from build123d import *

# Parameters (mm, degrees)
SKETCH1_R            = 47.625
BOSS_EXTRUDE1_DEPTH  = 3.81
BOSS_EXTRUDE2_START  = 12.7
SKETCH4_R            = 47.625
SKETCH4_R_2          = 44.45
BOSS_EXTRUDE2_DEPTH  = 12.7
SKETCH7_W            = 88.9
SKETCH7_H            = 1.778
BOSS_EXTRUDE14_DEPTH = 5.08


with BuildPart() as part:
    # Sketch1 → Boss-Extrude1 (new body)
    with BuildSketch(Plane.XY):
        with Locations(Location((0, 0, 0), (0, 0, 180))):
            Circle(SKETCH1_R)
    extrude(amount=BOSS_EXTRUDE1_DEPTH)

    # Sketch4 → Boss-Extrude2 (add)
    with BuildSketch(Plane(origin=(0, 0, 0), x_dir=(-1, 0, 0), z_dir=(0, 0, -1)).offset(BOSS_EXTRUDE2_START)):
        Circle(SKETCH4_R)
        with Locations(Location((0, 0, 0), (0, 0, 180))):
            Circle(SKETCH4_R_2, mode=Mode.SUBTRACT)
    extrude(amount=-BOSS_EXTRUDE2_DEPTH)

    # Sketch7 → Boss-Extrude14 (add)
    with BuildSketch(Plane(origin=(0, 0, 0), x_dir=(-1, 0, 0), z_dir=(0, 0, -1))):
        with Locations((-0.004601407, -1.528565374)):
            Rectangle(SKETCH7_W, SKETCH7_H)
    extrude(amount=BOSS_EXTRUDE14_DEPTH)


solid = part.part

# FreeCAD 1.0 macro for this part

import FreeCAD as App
import Part
import Sketcher
from FreeCAD import Vector
Q = App.Units.Quantity

doc = App.newDocument("Part")
body = doc.addObject("PartDesign::Body", "Body")

sketch1 = body.newObject("Sketcher::SketchObject", "Sketch")
sketch1.AttachmentSupport = (doc.getObject("XY_Plane"), [""])
sketch1.MapMode = "FlatFace"
sketch1.addGeometry(Part.Circle(Vector(0, 0, 0), Vector(0, 0, 1), 48), False)
sketch1.addConstraint([
    Sketcher.Constraint("Coincident", 0, 3, -1, 1),
    Sketcher.Constraint("Diameter", 0, Q("3.75 in")),
])
pad1 = body.newObject("PartDesign::Pad", "Pad")
pad1.Profile = sketch1
pad1.Length = Q("0.15 in")

sketch2 = body.newObject("Sketcher::SketchObject", "Sketch001")
sketch2.AttachmentSupport = (doc.getObject("XY_Plane"), [""])
sketch2.MapMode = "FlatFace"
sketch2.AttachmentOffset = App.Placement(Vector(0, 0, -0.5 * 25.4), App.Rotation())
sketch2.addGeometry([
    Part.Circle(Vector(0, 0, 0), Vector(0, 0, 1), 48),
    Part.Circle(Vector(0, 0, 0), Vector(0, 0, 1), 44),
], False)
sketch2.addConstraint([
    Sketcher.Constraint("Coincident", 0, 3, -1, 1),
    Sketcher.Constraint("Coincident", 1, 3, -1, 1),
    Sketcher.Constraint("Diameter", 1, Q("3.5 in")),
    Sketcher.Constraint("Diameter", 0, Q("3.75 in")),
])
pad2 = body.newObject("PartDesign::Pad", "Pad001")
pad2.Profile = sketch2
pad2.Length = Q("0.5 in")

sketch3 = body.newObject("Sketcher::SketchObject", "Sketch002")
sketch3.AttachmentSupport = (doc.getObject("XY_Plane"), [""])
sketch3.MapMode = "FlatFace"
sketch3.addGeometry([
    Part.LineSegment(Vector(44.5, -0.6, 0), Vector(44.5, -2.4, 0)),
    Part.LineSegment(Vector(44.5, -2.4, 0), Vector(-44.4, -2.4, 0)),
    Part.LineSegment(Vector(-44.4, -2.4, 0), Vector(-44.4, -0.6, 0)),
    Part.LineSegment(Vector(-44.4, -0.6, 0), Vector(44.5, -0.6, 0)),
], False)
sketch3.addConstraint([
    Sketcher.Constraint("Coincident", 0, 2, 1, 1),
    Sketcher.Constraint("Coincident", 1, 2, 2, 1),
    Sketcher.Constraint("Coincident", 2, 2, 3, 1),
    Sketcher.Constraint("Coincident", 3, 2, 0, 1),
    Sketcher.Constraint("Vertical", 0),
    Sketcher.Constraint("Horizontal", 1),
    Sketcher.Constraint("Vertical", 2),
    Sketcher.Constraint("Horizontal", 3),
    Sketcher.Constraint("DistanceX", 1, 2, 1, 1, Q("3.5 in")),
    Sketcher.Constraint("DistanceY", 0, 2, 0, 1, Q("0.07 in")),
    Sketcher.Constraint("DistanceX", -1, 1, 0, 2, Q("44.454601 mm")),
    Sketcher.Constraint("DistanceY", 0, 2, -1, 1, Q("2.417565 mm")),
])
pad3 = body.newObject("PartDesign::Pad", "Pad002")
pad3.Profile = sketch3
pad3.Length = Q("0.2 in")
pad3.Reversed = True

doc.recompute()
